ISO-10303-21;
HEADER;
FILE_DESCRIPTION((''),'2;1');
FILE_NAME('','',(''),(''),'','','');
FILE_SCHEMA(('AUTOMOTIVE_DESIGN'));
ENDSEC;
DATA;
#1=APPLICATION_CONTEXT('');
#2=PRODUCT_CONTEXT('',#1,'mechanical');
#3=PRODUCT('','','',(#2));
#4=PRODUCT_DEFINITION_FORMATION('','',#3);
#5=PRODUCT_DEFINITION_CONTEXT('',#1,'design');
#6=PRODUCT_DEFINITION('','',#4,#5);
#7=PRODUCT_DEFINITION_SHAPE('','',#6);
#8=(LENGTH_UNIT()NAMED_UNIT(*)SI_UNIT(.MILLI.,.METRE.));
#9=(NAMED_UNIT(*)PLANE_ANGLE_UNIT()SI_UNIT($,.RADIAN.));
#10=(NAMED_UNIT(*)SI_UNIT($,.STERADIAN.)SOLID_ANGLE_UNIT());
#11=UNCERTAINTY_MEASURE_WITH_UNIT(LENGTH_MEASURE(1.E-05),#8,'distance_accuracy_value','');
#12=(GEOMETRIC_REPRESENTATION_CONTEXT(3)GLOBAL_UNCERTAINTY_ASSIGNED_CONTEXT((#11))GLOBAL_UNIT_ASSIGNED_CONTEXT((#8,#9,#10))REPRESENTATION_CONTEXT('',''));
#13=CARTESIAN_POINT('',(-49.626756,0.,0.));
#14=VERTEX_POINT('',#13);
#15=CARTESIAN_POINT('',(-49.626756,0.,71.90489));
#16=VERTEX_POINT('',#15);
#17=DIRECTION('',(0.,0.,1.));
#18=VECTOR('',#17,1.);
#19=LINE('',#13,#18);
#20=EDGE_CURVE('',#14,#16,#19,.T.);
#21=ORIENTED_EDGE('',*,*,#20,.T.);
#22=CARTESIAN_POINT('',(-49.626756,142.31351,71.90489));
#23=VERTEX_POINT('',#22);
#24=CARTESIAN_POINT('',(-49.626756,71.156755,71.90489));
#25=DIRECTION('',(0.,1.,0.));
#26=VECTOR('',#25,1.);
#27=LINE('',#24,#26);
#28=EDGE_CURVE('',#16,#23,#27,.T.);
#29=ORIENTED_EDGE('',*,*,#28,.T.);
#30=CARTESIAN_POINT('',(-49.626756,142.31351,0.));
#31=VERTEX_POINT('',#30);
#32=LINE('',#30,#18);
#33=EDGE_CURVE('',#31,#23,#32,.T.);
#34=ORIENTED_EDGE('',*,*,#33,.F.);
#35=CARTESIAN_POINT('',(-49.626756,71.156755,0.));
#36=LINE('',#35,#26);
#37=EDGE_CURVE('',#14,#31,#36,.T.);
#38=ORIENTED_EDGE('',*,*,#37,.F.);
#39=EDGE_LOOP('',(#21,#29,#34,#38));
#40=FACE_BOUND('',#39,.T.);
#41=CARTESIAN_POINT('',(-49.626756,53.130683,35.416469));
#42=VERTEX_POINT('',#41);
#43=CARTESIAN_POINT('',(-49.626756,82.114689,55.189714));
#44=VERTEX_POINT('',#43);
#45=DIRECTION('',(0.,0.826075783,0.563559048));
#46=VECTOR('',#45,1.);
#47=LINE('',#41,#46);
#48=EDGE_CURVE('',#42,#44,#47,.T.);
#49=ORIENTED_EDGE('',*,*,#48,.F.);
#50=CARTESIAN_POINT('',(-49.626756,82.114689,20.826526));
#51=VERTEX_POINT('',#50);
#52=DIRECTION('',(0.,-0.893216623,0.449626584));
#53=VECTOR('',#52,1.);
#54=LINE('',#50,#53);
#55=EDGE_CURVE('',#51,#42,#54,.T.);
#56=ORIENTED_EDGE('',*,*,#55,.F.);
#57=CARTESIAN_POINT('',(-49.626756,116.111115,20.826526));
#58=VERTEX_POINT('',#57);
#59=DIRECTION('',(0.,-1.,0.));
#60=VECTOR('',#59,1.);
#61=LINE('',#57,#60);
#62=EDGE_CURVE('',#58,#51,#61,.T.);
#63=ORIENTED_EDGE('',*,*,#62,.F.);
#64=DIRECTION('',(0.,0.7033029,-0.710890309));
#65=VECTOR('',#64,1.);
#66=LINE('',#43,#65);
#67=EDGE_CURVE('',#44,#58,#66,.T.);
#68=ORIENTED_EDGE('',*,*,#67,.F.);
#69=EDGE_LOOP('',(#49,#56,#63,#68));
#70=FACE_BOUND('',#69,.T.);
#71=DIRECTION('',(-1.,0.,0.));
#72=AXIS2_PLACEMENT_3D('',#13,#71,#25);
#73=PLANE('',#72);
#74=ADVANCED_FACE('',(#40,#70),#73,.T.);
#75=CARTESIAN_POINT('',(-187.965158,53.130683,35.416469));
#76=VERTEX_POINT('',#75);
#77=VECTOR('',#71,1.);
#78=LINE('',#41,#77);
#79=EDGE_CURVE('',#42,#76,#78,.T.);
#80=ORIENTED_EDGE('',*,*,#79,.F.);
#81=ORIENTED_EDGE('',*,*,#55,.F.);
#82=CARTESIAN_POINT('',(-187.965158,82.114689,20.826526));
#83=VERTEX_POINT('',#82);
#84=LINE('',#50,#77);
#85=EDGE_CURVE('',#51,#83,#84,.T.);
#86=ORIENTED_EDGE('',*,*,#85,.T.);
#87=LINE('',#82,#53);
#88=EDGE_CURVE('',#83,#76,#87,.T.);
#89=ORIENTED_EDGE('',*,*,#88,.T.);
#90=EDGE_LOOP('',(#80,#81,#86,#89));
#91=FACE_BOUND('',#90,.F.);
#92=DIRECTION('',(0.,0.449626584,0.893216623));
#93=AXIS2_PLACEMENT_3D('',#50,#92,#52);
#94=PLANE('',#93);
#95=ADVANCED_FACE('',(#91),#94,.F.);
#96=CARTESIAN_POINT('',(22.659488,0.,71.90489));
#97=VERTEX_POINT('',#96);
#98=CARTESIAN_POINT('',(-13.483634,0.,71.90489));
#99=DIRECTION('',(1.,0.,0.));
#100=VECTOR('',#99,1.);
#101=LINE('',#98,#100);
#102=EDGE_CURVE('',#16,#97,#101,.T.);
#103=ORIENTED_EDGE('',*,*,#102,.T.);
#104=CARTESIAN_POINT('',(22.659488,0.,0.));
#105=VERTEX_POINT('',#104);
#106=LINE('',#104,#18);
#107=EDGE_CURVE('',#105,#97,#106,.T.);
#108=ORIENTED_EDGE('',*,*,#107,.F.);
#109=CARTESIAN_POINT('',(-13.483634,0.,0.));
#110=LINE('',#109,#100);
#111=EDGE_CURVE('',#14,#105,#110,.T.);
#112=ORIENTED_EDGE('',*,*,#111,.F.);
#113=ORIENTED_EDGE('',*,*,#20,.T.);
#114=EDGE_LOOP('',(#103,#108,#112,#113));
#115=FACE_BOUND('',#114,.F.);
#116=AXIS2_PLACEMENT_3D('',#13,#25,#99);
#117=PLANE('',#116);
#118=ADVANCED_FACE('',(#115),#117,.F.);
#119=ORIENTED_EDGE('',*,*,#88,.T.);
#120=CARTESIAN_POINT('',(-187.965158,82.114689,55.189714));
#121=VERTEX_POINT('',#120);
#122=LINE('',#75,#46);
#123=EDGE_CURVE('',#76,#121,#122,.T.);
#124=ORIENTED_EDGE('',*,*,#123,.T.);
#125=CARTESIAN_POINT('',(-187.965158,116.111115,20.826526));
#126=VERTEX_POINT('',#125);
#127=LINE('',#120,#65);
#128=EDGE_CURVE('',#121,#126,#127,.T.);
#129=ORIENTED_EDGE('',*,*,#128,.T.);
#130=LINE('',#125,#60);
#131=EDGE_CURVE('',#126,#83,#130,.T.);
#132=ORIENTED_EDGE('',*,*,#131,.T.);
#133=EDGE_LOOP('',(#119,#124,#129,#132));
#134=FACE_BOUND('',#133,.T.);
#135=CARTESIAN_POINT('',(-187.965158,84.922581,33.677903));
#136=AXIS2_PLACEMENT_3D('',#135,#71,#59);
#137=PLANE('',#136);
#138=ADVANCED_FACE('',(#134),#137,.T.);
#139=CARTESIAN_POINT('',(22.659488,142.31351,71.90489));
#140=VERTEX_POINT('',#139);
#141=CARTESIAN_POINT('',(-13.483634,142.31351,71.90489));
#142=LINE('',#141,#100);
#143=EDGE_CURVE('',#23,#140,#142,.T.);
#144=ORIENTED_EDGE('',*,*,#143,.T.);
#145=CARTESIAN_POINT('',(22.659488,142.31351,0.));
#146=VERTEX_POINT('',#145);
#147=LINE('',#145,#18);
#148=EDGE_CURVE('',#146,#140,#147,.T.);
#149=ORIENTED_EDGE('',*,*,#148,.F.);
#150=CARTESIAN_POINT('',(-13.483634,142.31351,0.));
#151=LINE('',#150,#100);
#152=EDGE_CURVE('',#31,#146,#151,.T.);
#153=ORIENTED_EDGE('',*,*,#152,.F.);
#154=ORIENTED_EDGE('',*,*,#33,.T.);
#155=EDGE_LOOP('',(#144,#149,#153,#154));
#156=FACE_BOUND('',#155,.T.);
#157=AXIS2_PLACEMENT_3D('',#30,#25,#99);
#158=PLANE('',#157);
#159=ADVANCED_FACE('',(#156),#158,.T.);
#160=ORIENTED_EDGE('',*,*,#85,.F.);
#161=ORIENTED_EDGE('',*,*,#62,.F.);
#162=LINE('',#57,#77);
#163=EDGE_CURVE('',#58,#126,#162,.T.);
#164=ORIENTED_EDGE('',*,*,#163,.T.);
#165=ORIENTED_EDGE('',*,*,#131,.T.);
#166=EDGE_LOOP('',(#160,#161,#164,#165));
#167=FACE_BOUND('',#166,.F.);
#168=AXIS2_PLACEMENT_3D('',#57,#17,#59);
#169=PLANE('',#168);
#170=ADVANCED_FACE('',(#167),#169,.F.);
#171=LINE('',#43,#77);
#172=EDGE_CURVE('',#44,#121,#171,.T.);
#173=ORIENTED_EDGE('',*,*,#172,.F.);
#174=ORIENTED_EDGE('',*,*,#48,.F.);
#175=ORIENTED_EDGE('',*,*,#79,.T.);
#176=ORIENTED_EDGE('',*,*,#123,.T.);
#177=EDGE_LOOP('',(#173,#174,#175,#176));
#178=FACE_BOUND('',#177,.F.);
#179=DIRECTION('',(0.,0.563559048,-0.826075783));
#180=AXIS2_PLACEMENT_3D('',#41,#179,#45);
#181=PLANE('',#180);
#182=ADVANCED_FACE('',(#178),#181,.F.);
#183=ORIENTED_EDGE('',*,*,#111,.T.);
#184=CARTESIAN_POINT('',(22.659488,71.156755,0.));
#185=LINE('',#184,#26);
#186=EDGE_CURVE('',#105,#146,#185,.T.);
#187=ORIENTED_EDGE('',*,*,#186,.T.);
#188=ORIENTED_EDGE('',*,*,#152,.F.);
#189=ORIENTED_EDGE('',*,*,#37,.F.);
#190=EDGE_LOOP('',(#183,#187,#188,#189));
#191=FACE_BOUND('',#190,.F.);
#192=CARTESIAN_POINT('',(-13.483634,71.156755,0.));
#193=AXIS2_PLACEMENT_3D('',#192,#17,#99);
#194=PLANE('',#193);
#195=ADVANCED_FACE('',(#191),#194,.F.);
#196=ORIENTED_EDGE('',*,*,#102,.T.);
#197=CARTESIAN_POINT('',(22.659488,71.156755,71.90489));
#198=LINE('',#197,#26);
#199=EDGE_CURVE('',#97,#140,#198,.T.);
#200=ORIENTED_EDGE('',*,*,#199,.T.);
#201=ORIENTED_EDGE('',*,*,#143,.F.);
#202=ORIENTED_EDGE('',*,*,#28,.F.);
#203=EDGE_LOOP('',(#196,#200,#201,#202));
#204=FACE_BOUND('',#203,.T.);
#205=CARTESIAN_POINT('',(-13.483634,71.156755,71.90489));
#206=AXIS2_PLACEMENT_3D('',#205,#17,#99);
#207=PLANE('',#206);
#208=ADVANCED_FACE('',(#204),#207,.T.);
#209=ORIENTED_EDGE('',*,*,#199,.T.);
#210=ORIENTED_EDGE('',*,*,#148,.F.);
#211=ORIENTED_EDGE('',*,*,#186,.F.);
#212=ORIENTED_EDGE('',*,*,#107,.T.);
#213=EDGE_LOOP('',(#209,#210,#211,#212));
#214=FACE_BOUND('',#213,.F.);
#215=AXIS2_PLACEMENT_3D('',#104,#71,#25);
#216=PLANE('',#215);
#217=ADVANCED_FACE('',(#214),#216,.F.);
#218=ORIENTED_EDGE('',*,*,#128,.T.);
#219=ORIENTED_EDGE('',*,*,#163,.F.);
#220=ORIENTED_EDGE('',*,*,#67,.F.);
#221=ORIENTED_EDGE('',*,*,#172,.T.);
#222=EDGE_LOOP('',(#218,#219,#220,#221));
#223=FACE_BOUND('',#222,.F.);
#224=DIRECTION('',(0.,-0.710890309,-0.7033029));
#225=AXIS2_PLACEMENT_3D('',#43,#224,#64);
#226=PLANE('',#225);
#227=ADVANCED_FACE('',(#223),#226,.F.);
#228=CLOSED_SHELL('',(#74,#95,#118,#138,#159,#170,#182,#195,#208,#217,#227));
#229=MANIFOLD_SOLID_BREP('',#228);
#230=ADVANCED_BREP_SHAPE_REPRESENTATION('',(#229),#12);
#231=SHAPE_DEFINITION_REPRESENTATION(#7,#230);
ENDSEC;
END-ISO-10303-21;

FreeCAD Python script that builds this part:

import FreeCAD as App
import Part
import Sketcher
Q = App.Units.Quantity


def add_polygon(sketch, points):
    """Adds a closed chain of lines whose ends are joined by coincident constraints."""
    first, n = sketch.GeometryCount, len(points)
    for a, b in zip(points, points[1:] + points[:1]):
        sketch.addGeometry(Part.LineSegment(App.Vector(*a, 0), App.Vector(*b, 0)), False)
    for i in range(n):
        sketch.addConstraint(Sketcher.Constraint("Coincident", first + i, 2, first + (i + 1) % n, 1))

doc = App.newDocument("Part")
params = doc.addObject("Spreadsheet::Sheet", "Params")
for row, (alias, value) in enumerate([
    ("pad1_length", "71.90489 mm"),
    ("pad2_length", "138.338402 mm"),
], start=1):
    params.set(f"A{row}", alias)
    params.set(f"B{row}", "=" + value)
    params.setAlias(f"B{row}", alias)

body = doc.addObject("PartDesign::Body", "Body")

sketch1 = body.newObject("Sketcher::SketchObject", "Sketch")
sketch1.AttachmentSupport = (doc.getObject("XY_Plane"), [""])
sketch1.MapMode = "FlatFace"
add_polygon(sketch1, [(-50, 142), (-50, 0), (23, 0), (23, 142)])
sketch1.addConstraint(Sketcher.Constraint("Vertical", 0))
sketch1.addConstraint(Sketcher.Constraint("Horizontal", 1))
sketch1.addConstraint(Sketcher.Constraint("Vertical", 2))
sketch1.addConstraint(Sketcher.Constraint("Horizontal", 3))
sketch1.addConstraint(Sketcher.Constraint("PointOnObject", 0, 2, -1))
sketch1.addConstraint(Sketcher.Constraint("DistanceY", 0, 2, 0, 1, Q("142.31351 mm")))
sketch1.addConstraint(Sketcher.Constraint("DistanceX", 1, 1, 1, 2, Q("72.286244 mm")))
sketch1.addConstraint(Sketcher.Constraint("DistanceX", 0, 2, -1, 1, Q("49.626756 mm")))
pad1 = body.newObject("PartDesign::Pad", "Pad")
pad1.Profile = sketch1
pad1.setExpression("Length", "Params.pad1_length")

sketch2 = body.newObject("Sketcher::SketchObject", "Sketch001")
sketch2.AttachmentSupport = (doc.getObject("YZ_Plane"), [""])
sketch2.MapMode = "FlatFace"
sketch2.AttachmentOffset = App.Placement(App.Vector(0, 0, -49.626756), App.Rotation())
add_polygon(sketch2, [(116, 21), (82, 21), (53, 35), (82, 55)])
sketch2.addConstraint(Sketcher.Constraint("Horizontal", 0))
sketch2.addConstraint(Sketcher.Constraint("Vertical", 0, 2, 2, 2))
sketch2.addConstraint(Sketcher.Constraint("DistanceX", 0, 2, 0, 1, Q("33.996426 mm")))
sketch2.addConstraint(Sketcher.Constraint("DistanceX", -1, 1, 0, 2, Q("82.114689 mm")))
sketch2.addConstraint(Sketcher.Constraint("DistanceY", -1, 1, 1, 2, Q("35.416469 mm")))
sketch2.addConstraint(Sketcher.Constraint("Distance", 1, Q("32.449022 mm")))
sketch2.addConstraint(Sketcher.Constraint("Distance", 2, Q("35.086377 mm")))
sketch2.addConstraint(Sketcher.Constraint("Distance", 3, Q("48.338242 mm")))
pad2 = body.newObject("PartDesign::Pad", "Pad001")
pad2.Profile = sketch2
pad2.setExpression("Length", "Params.pad2_length")
pad2.Reversed = True

doc.recompute()
